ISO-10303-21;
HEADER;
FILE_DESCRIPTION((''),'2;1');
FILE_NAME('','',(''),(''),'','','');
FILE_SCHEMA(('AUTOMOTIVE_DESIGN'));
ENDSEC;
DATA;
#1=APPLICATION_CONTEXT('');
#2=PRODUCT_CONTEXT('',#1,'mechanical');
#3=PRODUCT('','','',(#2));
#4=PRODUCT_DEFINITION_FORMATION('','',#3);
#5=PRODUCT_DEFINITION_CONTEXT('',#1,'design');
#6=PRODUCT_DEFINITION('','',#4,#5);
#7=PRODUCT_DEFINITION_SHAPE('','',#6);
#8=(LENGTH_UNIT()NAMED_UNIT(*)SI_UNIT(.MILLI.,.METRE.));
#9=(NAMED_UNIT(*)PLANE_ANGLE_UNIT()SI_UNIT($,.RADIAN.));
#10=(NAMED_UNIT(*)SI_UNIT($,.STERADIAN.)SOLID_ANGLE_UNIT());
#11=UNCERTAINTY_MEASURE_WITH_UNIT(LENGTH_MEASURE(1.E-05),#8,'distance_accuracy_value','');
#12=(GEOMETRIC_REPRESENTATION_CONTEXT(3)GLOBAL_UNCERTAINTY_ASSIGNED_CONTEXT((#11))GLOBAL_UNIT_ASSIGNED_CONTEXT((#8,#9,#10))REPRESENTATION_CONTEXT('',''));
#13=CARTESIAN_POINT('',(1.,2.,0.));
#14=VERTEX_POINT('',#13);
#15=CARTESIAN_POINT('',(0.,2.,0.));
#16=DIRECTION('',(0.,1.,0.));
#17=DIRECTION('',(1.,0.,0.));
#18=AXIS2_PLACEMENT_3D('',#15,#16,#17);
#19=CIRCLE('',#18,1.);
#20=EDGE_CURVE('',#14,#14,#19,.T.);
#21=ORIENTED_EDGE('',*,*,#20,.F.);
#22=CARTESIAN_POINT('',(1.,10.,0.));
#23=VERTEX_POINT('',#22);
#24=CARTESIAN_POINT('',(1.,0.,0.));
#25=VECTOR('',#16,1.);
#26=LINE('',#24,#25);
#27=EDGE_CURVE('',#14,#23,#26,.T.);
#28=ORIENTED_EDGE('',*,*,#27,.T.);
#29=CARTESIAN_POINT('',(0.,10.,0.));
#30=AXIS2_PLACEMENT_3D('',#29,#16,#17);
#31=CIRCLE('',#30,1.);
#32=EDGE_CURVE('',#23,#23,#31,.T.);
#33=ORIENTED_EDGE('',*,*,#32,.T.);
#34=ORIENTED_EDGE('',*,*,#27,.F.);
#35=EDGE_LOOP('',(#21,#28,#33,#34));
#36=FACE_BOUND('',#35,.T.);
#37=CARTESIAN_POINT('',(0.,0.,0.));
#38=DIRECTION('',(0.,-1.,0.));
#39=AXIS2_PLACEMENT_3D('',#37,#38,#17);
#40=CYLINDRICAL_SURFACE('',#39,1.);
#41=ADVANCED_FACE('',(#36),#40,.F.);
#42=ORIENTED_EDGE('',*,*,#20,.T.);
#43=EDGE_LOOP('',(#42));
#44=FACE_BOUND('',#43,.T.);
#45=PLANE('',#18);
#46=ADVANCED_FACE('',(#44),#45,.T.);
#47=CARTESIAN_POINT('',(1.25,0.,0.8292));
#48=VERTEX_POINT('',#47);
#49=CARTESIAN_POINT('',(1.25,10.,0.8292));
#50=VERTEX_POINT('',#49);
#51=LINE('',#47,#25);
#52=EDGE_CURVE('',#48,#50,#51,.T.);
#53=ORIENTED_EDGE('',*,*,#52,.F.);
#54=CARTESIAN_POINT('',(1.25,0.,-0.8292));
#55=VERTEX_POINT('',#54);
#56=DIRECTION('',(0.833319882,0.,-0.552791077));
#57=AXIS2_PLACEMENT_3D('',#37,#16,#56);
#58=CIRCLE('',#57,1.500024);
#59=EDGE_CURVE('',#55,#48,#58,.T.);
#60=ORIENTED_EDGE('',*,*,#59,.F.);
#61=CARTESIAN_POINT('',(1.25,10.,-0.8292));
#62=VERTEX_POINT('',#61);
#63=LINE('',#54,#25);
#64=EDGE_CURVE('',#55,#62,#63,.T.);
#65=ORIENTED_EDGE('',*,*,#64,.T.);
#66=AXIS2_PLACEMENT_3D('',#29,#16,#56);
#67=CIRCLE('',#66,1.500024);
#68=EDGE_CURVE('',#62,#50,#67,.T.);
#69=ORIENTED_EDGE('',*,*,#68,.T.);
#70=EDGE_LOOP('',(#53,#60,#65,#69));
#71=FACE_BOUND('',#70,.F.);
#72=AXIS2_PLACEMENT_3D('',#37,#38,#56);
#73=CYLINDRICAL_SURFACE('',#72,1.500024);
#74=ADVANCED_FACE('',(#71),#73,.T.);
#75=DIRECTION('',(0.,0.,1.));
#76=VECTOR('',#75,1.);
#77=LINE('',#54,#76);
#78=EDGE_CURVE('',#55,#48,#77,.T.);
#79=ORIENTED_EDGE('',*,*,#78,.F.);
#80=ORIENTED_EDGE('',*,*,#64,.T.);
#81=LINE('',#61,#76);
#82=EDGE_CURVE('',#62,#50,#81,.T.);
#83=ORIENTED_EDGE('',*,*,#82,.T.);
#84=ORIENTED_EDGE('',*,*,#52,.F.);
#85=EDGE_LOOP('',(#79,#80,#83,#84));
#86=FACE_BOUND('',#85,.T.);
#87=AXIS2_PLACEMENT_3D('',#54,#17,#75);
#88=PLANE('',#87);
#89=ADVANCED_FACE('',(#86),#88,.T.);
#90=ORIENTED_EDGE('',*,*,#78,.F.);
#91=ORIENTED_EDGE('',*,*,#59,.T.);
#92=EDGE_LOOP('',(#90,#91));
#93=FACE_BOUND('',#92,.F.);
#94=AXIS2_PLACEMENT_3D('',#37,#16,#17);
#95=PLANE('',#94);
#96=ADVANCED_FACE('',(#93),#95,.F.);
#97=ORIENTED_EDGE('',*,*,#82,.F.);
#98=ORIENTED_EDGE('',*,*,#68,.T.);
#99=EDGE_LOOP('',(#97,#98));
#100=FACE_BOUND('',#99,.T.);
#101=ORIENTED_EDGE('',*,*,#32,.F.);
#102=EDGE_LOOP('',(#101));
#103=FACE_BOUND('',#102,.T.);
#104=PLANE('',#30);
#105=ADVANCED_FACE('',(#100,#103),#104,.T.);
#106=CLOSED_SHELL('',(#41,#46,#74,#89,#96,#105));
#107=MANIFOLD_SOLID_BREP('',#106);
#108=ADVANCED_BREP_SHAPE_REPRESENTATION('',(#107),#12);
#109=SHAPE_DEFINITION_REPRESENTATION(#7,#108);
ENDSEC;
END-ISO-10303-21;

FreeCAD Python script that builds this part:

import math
import FreeCAD as App
import Part
import Sketcher

doc = App.newDocument("Part")
body = doc.addObject("PartDesign::Body", "Body")

# Sketch on XZ plane
sketch1 = body.newObject("Sketcher::SketchObject", "Sketch")
sketch1.AttachmentSupport = (doc.getObject("XZ_Plane"), [""])
sketch1.MapMode = "FlatFace"
sketch1.addGeometry([
    Part.LineSegment(App.Vector(1.2, 0.8, 0), App.Vector(1.2, -0.8, 0)),
    Part.ArcOfCircle(Part.Circle(App.Vector(0, 0, 0), App.Vector(0, 0, 1), 1.5), math.radians(34), math.radians(326)),
    Part.Circle(App.Vector(0, 0, 0), App.Vector(0, 0, 1), 1),
], False)
sketch1.addConstraint([
    Sketcher.Constraint("Coincident", 0, 1, 1, 1),
    Sketcher.Constraint("Coincident", 1, 2, 0, 2),
    Sketcher.Constraint("Vertical", 0),
    Sketcher.Constraint("Coincident", 1, 3, -1, 1),
    Sketcher.Constraint("Coincident", 2, 3, -1, 1),
    Sketcher.Constraint("Diameter", 2, 2.0),
    Sketcher.Constraint("Radius", 1, 1.5),
    Sketcher.Constraint("DistanceX", -1, 1, 0, 1, 1.25),
])
pad1 = body.newObject("PartDesign::Pad", "Pad")
pad1.Profile = sketch1
pad1.Length = 10
pad1.Reversed = True

# Sketch on XZ plane
sketch2 = body.newObject("Sketcher::SketchObject", "Sketch001")
sketch2.AttachmentSupport = (doc.getObject("XZ_Plane"), [""])
sketch2.MapMode = "FlatFace"
sketch2.addGeometry(Part.Circle(App.Vector(0, 0, 0), App.Vector(0, 0, 1), 1), False)
sketch2.addConstraint([
    Sketcher.Constraint("Coincident", 0, 3, -1, 1),
    Sketcher.Constraint("Diameter", 0, 2.0),
])
pad2 = body.newObject("PartDesign::Pad", "Pad001")
pad2.Profile = sketch2
pad2.Length = 2
pad2.Reversed = True

doc.recompute()
